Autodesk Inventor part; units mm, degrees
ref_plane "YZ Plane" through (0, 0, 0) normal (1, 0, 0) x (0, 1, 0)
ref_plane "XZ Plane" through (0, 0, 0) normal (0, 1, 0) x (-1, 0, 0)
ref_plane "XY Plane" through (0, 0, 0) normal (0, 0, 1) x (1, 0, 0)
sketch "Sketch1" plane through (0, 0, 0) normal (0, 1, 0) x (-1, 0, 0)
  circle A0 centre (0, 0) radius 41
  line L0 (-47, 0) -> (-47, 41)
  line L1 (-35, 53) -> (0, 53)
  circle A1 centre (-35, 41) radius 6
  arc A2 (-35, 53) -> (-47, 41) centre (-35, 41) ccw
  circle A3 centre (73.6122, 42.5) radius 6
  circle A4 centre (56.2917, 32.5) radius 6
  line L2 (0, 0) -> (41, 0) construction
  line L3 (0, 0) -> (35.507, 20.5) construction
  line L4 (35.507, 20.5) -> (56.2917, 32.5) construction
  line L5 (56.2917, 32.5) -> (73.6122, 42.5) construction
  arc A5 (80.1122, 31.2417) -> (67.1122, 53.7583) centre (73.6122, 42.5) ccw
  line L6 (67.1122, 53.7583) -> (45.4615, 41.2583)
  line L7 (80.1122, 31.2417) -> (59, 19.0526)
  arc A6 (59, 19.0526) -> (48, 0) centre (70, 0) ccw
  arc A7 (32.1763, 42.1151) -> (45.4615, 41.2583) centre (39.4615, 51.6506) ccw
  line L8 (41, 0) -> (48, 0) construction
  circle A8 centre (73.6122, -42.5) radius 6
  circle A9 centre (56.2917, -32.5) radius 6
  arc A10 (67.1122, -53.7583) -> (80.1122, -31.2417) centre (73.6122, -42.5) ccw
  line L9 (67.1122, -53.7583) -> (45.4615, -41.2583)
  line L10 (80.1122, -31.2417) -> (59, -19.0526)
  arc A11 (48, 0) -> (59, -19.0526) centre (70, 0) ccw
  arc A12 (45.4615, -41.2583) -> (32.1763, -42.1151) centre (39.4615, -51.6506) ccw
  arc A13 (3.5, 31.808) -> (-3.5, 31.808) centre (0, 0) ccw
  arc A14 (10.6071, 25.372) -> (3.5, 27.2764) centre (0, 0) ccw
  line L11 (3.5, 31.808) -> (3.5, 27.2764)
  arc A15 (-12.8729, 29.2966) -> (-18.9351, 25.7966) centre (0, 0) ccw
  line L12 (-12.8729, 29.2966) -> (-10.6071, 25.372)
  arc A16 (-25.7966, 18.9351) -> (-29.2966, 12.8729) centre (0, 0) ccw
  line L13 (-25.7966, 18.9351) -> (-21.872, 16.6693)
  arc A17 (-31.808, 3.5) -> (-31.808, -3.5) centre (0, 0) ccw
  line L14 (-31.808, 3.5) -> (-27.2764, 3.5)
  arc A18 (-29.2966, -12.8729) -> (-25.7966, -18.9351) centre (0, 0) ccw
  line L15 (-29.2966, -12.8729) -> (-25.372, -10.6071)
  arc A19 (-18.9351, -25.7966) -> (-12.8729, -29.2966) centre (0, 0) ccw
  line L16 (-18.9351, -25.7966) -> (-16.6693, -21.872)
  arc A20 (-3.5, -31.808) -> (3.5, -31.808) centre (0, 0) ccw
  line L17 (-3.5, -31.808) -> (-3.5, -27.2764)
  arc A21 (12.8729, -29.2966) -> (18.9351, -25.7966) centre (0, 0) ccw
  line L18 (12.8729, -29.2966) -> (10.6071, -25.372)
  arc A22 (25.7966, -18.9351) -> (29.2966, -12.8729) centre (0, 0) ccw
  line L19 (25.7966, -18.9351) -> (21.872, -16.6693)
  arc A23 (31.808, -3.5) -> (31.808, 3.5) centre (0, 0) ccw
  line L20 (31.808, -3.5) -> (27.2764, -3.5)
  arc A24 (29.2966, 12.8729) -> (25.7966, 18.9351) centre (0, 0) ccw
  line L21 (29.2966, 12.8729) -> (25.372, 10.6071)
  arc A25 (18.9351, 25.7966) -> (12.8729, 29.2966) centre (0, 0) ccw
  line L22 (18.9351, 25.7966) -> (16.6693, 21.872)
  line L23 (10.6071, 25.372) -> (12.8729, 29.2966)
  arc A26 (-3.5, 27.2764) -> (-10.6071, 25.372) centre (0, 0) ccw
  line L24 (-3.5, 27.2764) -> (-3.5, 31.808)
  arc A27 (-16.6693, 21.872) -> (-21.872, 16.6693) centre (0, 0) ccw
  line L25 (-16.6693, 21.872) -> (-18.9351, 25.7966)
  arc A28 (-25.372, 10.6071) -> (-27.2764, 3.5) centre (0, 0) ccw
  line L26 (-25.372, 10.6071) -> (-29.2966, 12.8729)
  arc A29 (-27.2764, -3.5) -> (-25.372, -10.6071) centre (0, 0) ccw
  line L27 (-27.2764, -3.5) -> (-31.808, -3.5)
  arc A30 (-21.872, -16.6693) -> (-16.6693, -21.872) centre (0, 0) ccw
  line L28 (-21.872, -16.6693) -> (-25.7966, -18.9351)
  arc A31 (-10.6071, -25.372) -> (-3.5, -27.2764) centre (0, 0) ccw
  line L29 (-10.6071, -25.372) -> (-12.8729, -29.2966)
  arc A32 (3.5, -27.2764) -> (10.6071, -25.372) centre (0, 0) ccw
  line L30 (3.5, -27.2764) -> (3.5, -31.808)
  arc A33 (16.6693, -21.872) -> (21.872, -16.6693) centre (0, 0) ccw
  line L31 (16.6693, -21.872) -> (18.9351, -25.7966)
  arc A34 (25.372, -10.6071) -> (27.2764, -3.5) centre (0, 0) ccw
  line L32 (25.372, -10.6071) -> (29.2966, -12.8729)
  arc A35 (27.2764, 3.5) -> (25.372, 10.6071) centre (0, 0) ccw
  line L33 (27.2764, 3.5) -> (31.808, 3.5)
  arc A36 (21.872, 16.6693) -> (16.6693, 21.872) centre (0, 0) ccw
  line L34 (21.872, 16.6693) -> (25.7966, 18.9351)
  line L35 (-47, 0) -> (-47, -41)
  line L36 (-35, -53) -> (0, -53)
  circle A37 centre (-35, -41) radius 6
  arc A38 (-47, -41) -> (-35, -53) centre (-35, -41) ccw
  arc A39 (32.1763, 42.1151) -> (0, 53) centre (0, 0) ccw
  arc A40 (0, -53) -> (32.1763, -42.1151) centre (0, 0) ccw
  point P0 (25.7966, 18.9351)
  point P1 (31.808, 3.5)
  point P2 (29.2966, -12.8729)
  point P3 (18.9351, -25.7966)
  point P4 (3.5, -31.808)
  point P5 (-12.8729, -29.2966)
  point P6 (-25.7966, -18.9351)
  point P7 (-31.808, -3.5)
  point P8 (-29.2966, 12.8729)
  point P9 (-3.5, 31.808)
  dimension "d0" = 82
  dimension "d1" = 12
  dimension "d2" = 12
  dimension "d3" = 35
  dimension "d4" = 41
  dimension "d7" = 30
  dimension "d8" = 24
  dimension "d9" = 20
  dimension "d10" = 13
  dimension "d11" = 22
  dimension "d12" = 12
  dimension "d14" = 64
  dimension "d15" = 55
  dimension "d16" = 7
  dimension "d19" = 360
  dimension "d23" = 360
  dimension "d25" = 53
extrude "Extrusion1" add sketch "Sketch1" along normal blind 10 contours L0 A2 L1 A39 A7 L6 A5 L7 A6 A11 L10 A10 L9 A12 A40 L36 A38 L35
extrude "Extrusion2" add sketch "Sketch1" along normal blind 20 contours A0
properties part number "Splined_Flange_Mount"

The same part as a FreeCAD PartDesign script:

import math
import FreeCAD as App
import Part
import Sketcher

V = App.Vector
Q = App.Units.Quantity

doc = App.newDocument("Part")
body = doc.addObject("PartDesign::Body", "Body")

# Sketch on XZ plane
sketch1 = doc.addObject("Sketcher::SketchObject", "Sketch")
body.addObject(sketch1)
sketch1.AttachmentSupport = (doc.XZ_Plane, [""])
sketch1.MapMode = "FlatFace"
sketch1.addGeometry([
    Part.LineSegment(V(47, 41, 0), V(47, -41, 0)),  # 0
    Part.ArcOfCircle(Part.Circle(V(35, -41, 0), V(0, 0, 1), 12), math.radians(-90), math.radians(0)),  # 1
    Part.LineSegment(V(35, -53, 0), V(0, -53, 0)),  # 2
    Part.ArcOfCircle(Part.Circle(V(0, 0, 0), V(0, 0, 1), 53), math.radians(-127), math.radians(-90)),  # 3
    Part.ArcOfCircle(Part.Circle(V(-39, -52, 0), V(0, 0, 1), 12), math.radians(53), math.radians(120)),  # 4
    Part.LineSegment(V(-45, -41, 0), V(-67, -54, 0)),  # 5
    Part.ArcOfCircle(Part.Circle(V(-74, -42, 0), V(0, 0, 1), 13), math.radians(120), math.radians(300)),  # 6
    Part.LineSegment(V(-80, -31, 0), V(-59, -19, 0)),  # 7
    Part.ArcOfCircle(Part.Circle(V(-70, 0, 0), V(0, 0, 1), 22), math.radians(-60), math.radians(0)),  # 8
    Part.ArcOfCircle(Part.Circle(V(-70, 0, 0), V(0, 0, 1), 22), math.radians(0), math.radians(60)),  # 9
    Part.LineSegment(V(-59, 19, 0), V(-80, 31, 0)),  # 10
    Part.ArcOfCircle(Part.Circle(V(-74, 42, 0), V(0, 0, 1), 13), math.radians(60), math.radians(240)),  # 11
    Part.LineSegment(V(-67, 54, 0), V(-45, 41, 0)),  # 12
    Part.ArcOfCircle(Part.Circle(V(-39, 52, 0), V(0, 0, 1), 12), math.radians(-120), math.radians(-53)),  # 13
    Part.ArcOfCircle(Part.Circle(V(0, 0, 0), V(0, 0, 1), 53), math.radians(90), math.radians(127)),  # 14
    Part.LineSegment(V(0, 53, 0), V(35, 53, 0)),  # 15
    Part.ArcOfCircle(Part.Circle(V(35, 41, 0), V(0, 0, 1), 12), math.radians(0), math.radians(90)),  # 16
    Part.Circle(V(35, -41, 0), V(0, 0, 1), 6),  # 17
    Part.Circle(V(-74, -42, 0), V(0, 0, 1), 6),  # 18
    Part.Circle(V(-56, -32, 0), V(0, 0, 1), 6),  # 19
    Part.Circle(V(0, 0, 0), V(0, 0, 1), 41),  # 20
    Part.Circle(V(35, 41, 0), V(0, 0, 1), 6),  # 21
    Part.Circle(V(-56, 32, 0), V(0, 0, 1), 6),  # 22
    Part.Circle(V(-74, 42, 0), V(0, 0, 1), 6),  # 23
], False)
sketch1.addConstraint([
    Sketcher.Constraint("Tangent", 0, 2, 1, 2),
    Sketcher.Constraint("Tangent", 1, 1, 2, 1),
    Sketcher.Constraint("Tangent", 2, 2, 3, 2),
    Sketcher.Constraint("Tangent", 3, 1, 4, 1),
    Sketcher.Constraint("Tangent", 4, 2, 5, 1),
    Sketcher.Constraint("Tangent", 5, 2, 6, 2),
    Sketcher.Constraint("Tangent", 6, 1, 7, 1),
    Sketcher.Constraint("Tangent", 7, 2, 8, 1),
    Sketcher.Constraint("Tangent", 8, 2, 9, 1),
    Sketcher.Constraint("Tangent", 9, 2, 10, 1),
    Sketcher.Constraint("Tangent", 10, 2, 11, 2),
    Sketcher.Constraint("Tangent", 11, 1, 12, 1),
    Sketcher.Constraint("Tangent", 12, 2, 13, 1),
    Sketcher.Constraint("Tangent", 13, 2, 14, 2),
    Sketcher.Constraint("Tangent", 14, 1, 15, 1),
    Sketcher.Constraint("Tangent", 15, 2, 16, 2),
    Sketcher.Constraint("Tangent", 16, 1, 0, 1),
    Sketcher.Constraint("Vertical", 0),
    Sketcher.Constraint("Horizontal", 2),
    Sketcher.Constraint("Horizontal", 15),
    Sketcher.Constraint("Coincident", 3, 3, -1, 1),
    Sketcher.Constraint("Coincident", 14, 3, -1, 1),
    Sketcher.Constraint("Coincident", 20, 3, -1, 1),
    Sketcher.Constraint("Coincident", 17, 3, 1, 3),
    Sketcher.Constraint("Coincident", 18, 3, 6, 3),
    Sketcher.Constraint("Coincident", 21, 3, 16, 3),
    Sketcher.Constraint("Coincident", 23, 3, 11, 3),
    Sketcher.Constraint("Equal", 1, 4),
    Sketcher.Constraint("Equal", 8, 9),
    Sketcher.Constraint("Equal", 6, 11),
    Sketcher.Constraint("Equal", 4, 13),
    Sketcher.Constraint("Equal", 3, 14),
    Sketcher.Constraint("Equal", 13, 16),
    Sketcher.Constraint("Equal", 17, 18),
    Sketcher.Constraint("Equal", 18, 19),
    Sketcher.Constraint("Equal", 19, 21),
    Sketcher.Constraint("Equal", 21, 22),
    Sketcher.Constraint("Equal", 22, 23),
    Sketcher.Constraint("Symmetric", 6, 3, 11, 3, -1),
    Sketcher.Constraint("Symmetric", 19, 3, 22, 3, -1),
    Sketcher.Constraint("PointOnObject", 8, 3, -1),
    Sketcher.Constraint("PointOnObject", 8, 2, -1),
    Sketcher.Constraint("Parallel", 5, 7),
    Sketcher.Constraint("Parallel", 10, 12),
    Sketcher.Constraint("Diameter", 17, Q("12 mm")),
    Sketcher.Constraint("Diameter", 20, Q("82 mm")),
    Sketcher.Constraint("Radius", 1, Q("12 mm")),
    Sketcher.Constraint("Radius", 3, Q("53 mm")),
    Sketcher.Constraint("Radius", 6, Q("13 mm")),
    Sketcher.Constraint("Radius", 8, Q("22 mm")),
    Sketcher.Constraint("DistanceX", 2, 2, 2, 1, Q("35 mm")),
    Sketcher.Constraint("Angle", 7, Q("30 deg")),
    Sketcher.Constraint("Distance", 5, Q("25 mm")),
    Sketcher.Constraint("DistanceX", 8, 3, -1, 1, Q("70 mm")),
    Sketcher.Constraint("DistanceY", 6, 3, 19, 3, Q("10 mm")),
    Sketcher.Constraint("DistanceX", 19, 3, -1, 1, Q("56.2917 mm")),
])
pad1 = doc.addObject("PartDesign::Pad", "Pad")
body.addObject(pad1)
pad1.Profile = sketch1
pad1.Length = 10
pad1.Reversed = True

# Sketch on XZ plane
sketch2 = doc.addObject("Sketcher::SketchObject", "Sketch001")
body.addObject(sketch2)
sketch2.AttachmentSupport = (doc.XZ_Plane, [""])
sketch2.MapMode = "FlatFace"
sketch2.addGeometry([
    Part.Circle(V(0, 0, 0), V(0, 0, 1), 41),  # 0
    Part.ArcOfCircle(Part.Circle(V(0, 0, 0), V(0, 0, 1), 31.999982), math.radians(83.720708), math.radians(96.279292)),  # 1
    Part.LineSegment(V(-3.5, 31.808, 0), V(-3.5, 27.2764, 0)),  # 2
    Part.ArcOfCircle(Part.Circle(V(0.000996, -0.002919, 0), V(0, 0, 1), 27.503058), math.radians(97.313297), math.radians(112.68758)),  # 3
    Part.LineSegment(V(-10.6071, 25.372, 0), V(-12.8729, 29.2966, 0)),  # 4
    Part.ArcOfCircle(Part.Circle(V(0, 0, 0), V(0, 0, 1), 31.999982), math.radians(113.720644), math.radians(126.27924)),  # 5
    Part.LineSegment(V(-18.9351, 25.7966, 0), V(-16.6693, 21.872, 0)),  # 6
    Part.ArcOfCircle(Part.Circle(V(0, 0, 0), V(0, 0, 1), 27.499999), math.radians(127.3121), math.radians(142.6879)),  # 7
    Part.LineSegment(V(-21.872, 16.6693, 0), V(-25.7966, 18.9351, 0)),  # 8
    Part.ArcOfCircle(Part.Circle(V(0, 0, 0), V(0, 0, 1), 32.00004), math.radians(143.72076), math.radians(156.279356)),  # 9
    Part.LineSegment(V(-29.2966, 12.8729, 0), V(-25.372, 10.6071, 0)),  # 10
    Part.ArcOfCircle(Part.Circle(V(-0.003025, 0.000597, 0), V(0, 0, 1), 27.49696), math.radians(157.310704), math.radians(172.688419)),  # 11
    Part.LineSegment(V(-27.2764, 3.5, 0), V(-31.808, 3.5, 0)),  # 12
    Part.ArcOfCircle(Part.Circle(V(0, 0, 0), V(0, 0, 1), 31.999982), math.radians(173.720708), math.radians(186.279292)),  # 13
    Part.LineSegment(V(-31.808, -3.5, 0), V(-27.2764, -3.5, 0)),  # 14
    Part.ArcOfCircle(Part.Circle(V(0.002919, 0.000996, 0), V(0, 0, 1), 27.503058), math.radians(-172.686703), math.radians(-157.31242)),  # 15
    Part.LineSegment(V(-25.372, -10.6071, 0), V(-29.2966, -12.8729, 0)),  # 16
    Part.ArcOfCircle(Part.Circle(V(0, 0, 0), V(0, 0, 1), 31.999982), math.radians(-156.279356), math.radians(-143.72076)),  # 17
    Part.LineSegment(V(-25.7966, -18.9351, 0), V(-21.872, -16.6693, 0)),  # 18
    Part.ArcOfCircle(Part.Circle(V(0, 0, 0), V(0, 0, 1), 27.499999), math.radians(-142.6879), math.radians(-127.3121)),  # 19
    Part.LineSegment(V(-16.6693, -21.872, 0), V(-18.9351, -25.7966, 0)),  # 20
    Part.ArcOfCircle(Part.Circle(V(0, 0, 0), V(0, 0, 1), 32.00004), math.radians(-126.27924), math.radians(-113.720644)),  # 21
    Part.LineSegment(V(-12.8729, -29.2966, 0), V(-10.6071, -25.372, 0)),  # 22
    Part.ArcOfCircle(Part.Circle(V(-0.000597, -0.003025, 0), V(0, 0, 1), 27.49696), math.radians(-112.689296), math.radians(-97.311581)),  # 23
    Part.LineSegment(V(-3.5, -27.2764, 0), V(-3.5, -31.808, 0)),  # 24
    Part.ArcOfCircle(Part.Circle(V(0, 0, 0), V(0, 0, 1), 31.999982), math.radians(-96.279292), math.radians(-83.720708)),  # 25
    Part.LineSegment(V(3.5, -31.808, 0), V(3.5, -27.2764, 0)),  # 26
    Part.ArcOfCircle(Part.Circle(V(-0.000996, 0.002919, 0), V(0, 0, 1), 27.503058), math.radians(-82.686703), math.radians(-67.31242)),  # 27
    Part.LineSegment(V(10.6071, -25.372, 0), V(12.8729, -29.2966, 0)),  # 28
    Part.ArcOfCircle(Part.Circle(V(0, 0, 0), V(0, 0, 1), 31.999982), math.radians(-66.279356), math.radians(-53.72076)),  # 29
    Part.LineSegment(V(18.9351, -25.7966, 0), V(16.6693, -21.872, 0)),  # 30
    Part.ArcOfCircle(Part.Circle(V(0, 0, 0), V(0, 0, 1), 27.499999), math.radians(-52.6879), math.radians(-37.3121)),  # 31
    Part.LineSegment(V(21.872, -16.6693, 0), V(25.7966, -18.9351, 0)),  # 32
    Part.ArcOfCircle(Part.Circle(V(0, 0, 0), V(0, 0, 1), 32.00004), math.radians(-36.27924), math.radians(-23.720644)),  # 33
    Part.LineSegment(V(29.2966, -12.8729, 0), V(25.372, -10.6071, 0)),  # 34
    Part.ArcOfCircle(Part.Circle(V(0.003025, -0.000597, 0), V(0, 0, 1), 27.49696), math.radians(-22.689296), math.radians(-7.311581)),  # 35
    Part.LineSegment(V(27.2764, -3.5, 0), V(31.808, -3.5, 0)),  # 36
    Part.ArcOfCircle(Part.Circle(V(0, 0, 0), V(0, 0, 1), 31.999982), math.radians(-6.279292), math.radians(6.279292)),  # 37
    Part.LineSegment(V(31.808, 3.5, 0), V(27.2764, 3.5, 0)),  # 38
    Part.ArcOfCircle(Part.Circle(V(-0.002919, -0.000996, 0), V(0, 0, 1), 27.503058), math.radians(7.313297), math.radians(22.68758)),  # 39
    Part.LineSegment(V(25.372, 10.6071, 0), V(29.2966, 12.8729, 0)),  # 40
    Part.ArcOfCircle(Part.Circle(V(0, 0, 0), V(0, 0, 1), 31.999982), math.radians(23.720644), math.radians(36.27924)),  # 41
    Part.LineSegment(V(25.7966, 18.9351, 0), V(21.872, 16.6693, 0)),  # 42
    Part.ArcOfCircle(Part.Circle(V(0, 0, 0), V(0, 0, 1), 27.499999), math.radians(37.3121), math.radians(52.6879)),  # 43
    Part.LineSegment(V(16.6693, 21.872, 0), V(18.9351, 25.7966, 0)),  # 44
    Part.ArcOfCircle(Part.Circle(V(0, 0, 0), V(0, 0, 1), 32.00004), math.radians(53.72076), math.radians(66.279356)),  # 45
    Part.LineSegment(V(12.8729, 29.2966, 0), V(10.6071, 25.372, 0)),  # 46
    Part.ArcOfCircle(Part.Circle(V(0.000597, 0.003025, 0), V(0, 0, 1), 27.49696), math.radians(67.310704), math.radians(82.688419)),  # 47
    Part.LineSegment(V(3.5, 27.2764, 0), V(3.5, 31.808, 0)),  # 48
], False)
sketch2.addConstraint([
    Sketcher.Constraint("Coincident", 1, 2, 2, 1),
    Sketcher.Constraint("Coincident", 2, 2, 3, 1),
    Sketcher.Constraint("Coincident", 3, 2, 4, 1),
    Sketcher.Constraint("Coincident", 4, 2, 5, 1),
    Sketcher.Constraint("Coincident", 5, 2, 6, 1),
    Sketcher.Constraint("Coincident", 6, 2, 7, 1),
    Sketcher.Constraint("Coincident", 7, 2, 8, 1),
    Sketcher.Constraint("Coincident", 8, 2, 9, 1),
    Sketcher.Constraint("Coincident", 9, 2, 10, 1),
    Sketcher.Constraint("Coincident", 10, 2, 11, 1),
    Sketcher.Constraint("Coincident", 11, 2, 12, 1),
    Sketcher.Constraint("Coincident", 12, 2, 13, 1),
    Sketcher.Constraint("Coincident", 13, 2, 14, 1),
    Sketcher.Constraint("Coincident", 14, 2, 15, 1),
    Sketcher.Constraint("Coincident", 15, 2, 16, 1),
    Sketcher.Constraint("Coincident", 16, 2, 17, 1),
    Sketcher.Constraint("Coincident", 17, 2, 18, 1),
    Sketcher.Constraint("Coincident", 18, 2, 19, 1),
    Sketcher.Constraint("Coincident", 19, 2, 20, 1),
    Sketcher.Constraint("Coincident", 20, 2, 21, 1),
    Sketcher.Constraint("Coincident", 21, 2, 22, 1),
    Sketcher.Constraint("Coincident", 22, 2, 23, 1),
    Sketcher.Constraint("Coincident", 23, 2, 24, 1),
    Sketcher.Constraint("Coincident", 24, 2, 25, 1),
    Sketcher.Constraint("Coincident", 25, 2, 26, 1),
    Sketcher.Constraint("Coincident", 26, 2, 27, 1),
    Sketcher.Constraint("Coincident", 27, 2, 28, 1),
    Sketcher.Constraint("Coincident", 28, 2, 29, 1),
    Sketcher.Constraint("Coincident", 29, 2, 30, 1),
    Sketcher.Constraint("Coincident", 30, 2, 31, 1),
    Sketcher.Constraint("Coincident", 31, 2, 32, 1),
    Sketcher.Constraint("Coincident", 32, 2, 33, 1),
    Sketcher.Constraint("Coincident", 33, 2, 34, 1),
    Sketcher.Constraint("Coincident", 34, 2, 35, 1),
    Sketcher.Constraint("Coincident", 35, 2, 36, 1),
    Sketcher.Constraint("Coincident", 36, 2, 37, 1),
    Sketcher.Constraint("Coincident", 37, 2, 38, 1),
    Sketcher.Constraint("Coincident", 38, 2, 39, 1),
    Sketcher.Constraint("Coincident", 39, 2, 40, 1),
    Sketcher.Constraint("Coincident", 40, 2, 41, 1),
    Sketcher.Constraint("Coincident", 41, 2, 42, 1),
    Sketcher.Constraint("Coincident", 42, 2, 43, 1),
    Sketcher.Constraint("Coincident", 43, 2, 44, 1),
    Sketcher.Constraint("Coincident", 44, 2, 45, 1),
    Sketcher.Constraint("Coincident", 45, 2, 46, 1),
    Sketcher.Constraint("Coincident", 46, 2, 47, 1),
    Sketcher.Constraint("Coincident", 47, 2, 48, 1),
    Sketcher.Constraint("Coincident", 48, 2, 1, 1),
    Sketcher.Constraint("Vertical", 2),
    Sketcher.Constraint("Horizontal", 12),
    Sketcher.Constraint("Horizontal", 14),
    Sketcher.Constraint("Vertical", 24),
    Sketcher.Constraint("Vertical", 26),
    Sketcher.Constraint("Horizontal", 36),
    Sketcher.Constraint("Horizontal", 38),
    Sketcher.Constraint("Vertical", 48),
    Sketcher.Constraint("Coincident", 0, 3, -1, 1),
    Sketcher.Constraint("Coincident", 1, 3, -1, 1),
    Sketcher.Constraint("Coincident", 5, 3, -1, 1),
    Sketcher.Constraint("Coincident", 7, 3, -1, 1),
    Sketcher.Constraint("Coincident", 9, 3, -1, 1),
    Sketcher.Constraint("Coincident", 13, 3, -1, 1),
    Sketcher.Constraint("Coincident", 17, 3, -1, 1),
    Sketcher.Constraint("Coincident", 19, 3, -1, 1),
    Sketcher.Constraint("Coincident", 21, 3, -1, 1),
    Sketcher.Constraint("Coincident", 25, 3, -1, 1),
    Sketcher.Constraint("Coincident", 29, 3, -1, 1),
    Sketcher.Constraint("Coincident", 31, 3, -1, 1),
    Sketcher.Constraint("Coincident", 33, 3, -1, 1),
    Sketcher.Constraint("Coincident", 37, 3, -1, 1),
    Sketcher.Constraint("Coincident", 41, 3, -1, 1),
    Sketcher.Constraint("Coincident", 43, 3, -1, 1),
    Sketcher.Constraint("Coincident", 45, 3, -1, 1),
    Sketcher.Constraint("Diameter", 0, Q("82 mm")),
    Sketcher.Constraint("Radius", 1, Q("32 mm")),
    Sketcher.Constraint("Radius", 5, Q("32 mm")),
    Sketcher.Constraint("Radius", 9, Q("32 mm")),
    Sketcher.Constraint("Radius", 13, Q("32 mm")),
    Sketcher.Constraint("Radius", 17, Q("32 mm")),
    Sketcher.Constraint("Radius", 21, Q("32 mm")),
    Sketcher.Constraint("Radius", 25, Q("32 mm")),
    Sketcher.Constraint("Radius", 29, Q("32 mm")),
    Sketcher.Constraint("Radius", 33, Q("32 mm")),
    Sketcher.Constraint("Radius", 37, Q("32 mm")),
    Sketcher.Constraint("Radius", 41, Q("32 mm")),
    Sketcher.Constraint("Radius", 45, Q("32 mm")),
    Sketcher.Constraint("Radius", 7, Q("27.5 mm")),
    Sketcher.Constraint("Radius", 19, Q("27.5 mm")),
    Sketcher.Constraint("Radius", 31, Q("27.5 mm")),
    Sketcher.Constraint("Radius", 43, Q("27.5 mm")),
    Sketcher.Constraint("Radius", 3, Q("27.503 mm")),
    Sketcher.Constraint("Radius", 11, Q("27.497 mm")),
    Sketcher.Constraint("Radius", 15, Q("27.503 mm")),
    Sketcher.Constraint("Radius", 23, Q("27.497 mm")),
    Sketcher.Constraint("Radius", 27, Q("27.503 mm")),
    Sketcher.Constraint("Radius", 35, Q("27.497 mm")),
    Sketcher.Constraint("Radius", 39, Q("27.503 mm")),
    Sketcher.Constraint("Radius", 47, Q("27.497 mm")),
    Sketcher.Constraint("DistanceX", 1, 2, -1, 1, Q("3.5 mm")),
    Sketcher.Constraint("DistanceY", -1, 1, 11, 2, Q("3.5 mm")),
    Sketcher.Constraint("DistanceY", 13, 2, -1, 1, Q("3.5 mm")),
    Sketcher.Constraint("DistanceX", 23, 2, -1, 1, Q("3.5 mm")),
    Sketcher.Constraint("DistanceX", -1, 1, 25, 2, Q("3.5 mm")),
    Sketcher.Constraint("DistanceY", 35, 2, -1, 1, Q("3.5 mm")),
    Sketcher.Constraint("DistanceY", -1, 1, 37, 2, Q("3.5 mm")),
    Sketcher.Constraint("DistanceX", -1, 1, 47, 2, Q("3.5 mm")),
    Sketcher.Constraint("DistanceX", 12, 2, 12, 1, Q("4.5316 mm")),
    Sketcher.Constraint("DistanceX", 14, 1, 14, 2, Q("4.5316 mm")),
    Sketcher.Constraint("DistanceX", 36, 1, 36, 2, Q("4.5316 mm")),
    Sketcher.Constraint("DistanceX", 38, 2, 38, 1, Q("4.5316 mm")),
    Sketcher.Constraint("DistanceY", 2, 2, 2, 1, Q("4.5316 mm")),
    Sketcher.Constraint("DistanceY", 24, 2, 24, 1, Q("4.5316 mm")),
    Sketcher.Constraint("DistanceY", 26, 1, 26, 2, Q("4.5316 mm")),
    Sketcher.Constraint("DistanceY", 48, 1, 48, 2, Q("4.5316 mm")),
    Sketcher.Constraint("DistanceX", -1, 1, 3, 3, Q("0.001 mm")),
    Sketcher.Constraint("DistanceX", 11, 3, -1, 1, Q("0.003 mm")),
    Sketcher.Constraint("DistanceX", -1, 1, 15, 3, Q("0.003 mm")),
    Sketcher.Constraint("DistanceY", 23, 3, -1, 1, Q("0.003 mm")),
    Sketcher.Constraint("DistanceX", 27, 3, -1, 1, Q("0.001 mm")),
    Sketcher.Constraint("DistanceX", -1, 1, 35, 3, Q("0.003 mm")),
    Sketcher.Constraint("DistanceX", 39, 3, -1, 1, Q("0.003 mm")),
    Sketcher.Constraint("DistanceY", -1, 1, 47, 3, Q("0.003 mm")),
    Sketcher.Constraint("DistanceX", 3, 2, -1, 1, Q("10.607 mm")),
    Sketcher.Constraint("DistanceX", 4, 2, -1, 1, Q("12.873 mm")),
    Sketcher.Constraint("DistanceX", 5, 2, -1, 1, Q("18.935 mm")),
    Sketcher.Constraint("DistanceY", -1, 1, 6, 2, Q("21.872 mm")),
    Sketcher.Constraint("DistanceX", 7, 2, -1, 1, Q("21.872 mm")),
    Sketcher.Constraint("DistanceY", -1, 1, 8, 2, Q("18.935 mm")),
    Sketcher.Constraint("DistanceY", -1, 1, 9, 2, Q("12.873 mm")),
    Sketcher.Constraint("DistanceX", 10, 2, -1, 1, Q("25.372 mm")),
    Sketcher.Constraint("DistanceX", 15, 2, -1, 1, Q("25.372 mm")),
    Sketcher.Constraint("DistanceY", 16, 2, -1, 1, Q("12.873 mm")),
    Sketcher.Constraint("DistanceY", 17, 2, -1, 1, Q("18.935 mm")),
    Sketcher.Constraint("DistanceX", 18, 2, -1, 1, Q("21.872 mm")),
    Sketcher.Constraint("DistanceY", 19, 2, -1, 1, Q("21.872 mm")),
    Sketcher.Constraint("DistanceX", 20, 2, -1, 1, Q("18.935 mm")),
    Sketcher.Constraint("DistanceX", 21, 2, -1, 1, Q("12.873 mm")),
    Sketcher.Constraint("DistanceX", 22, 2, -1, 1, Q("10.607 mm")),
    Sketcher.Constraint("DistanceX", -1, 1, 27, 2, Q("10.607 mm")),
    Sketcher.Constraint("DistanceX", -1, 1, 28, 2, Q("12.873 mm")),
    Sketcher.Constraint("DistanceX", -1, 1, 29, 2, Q("18.935 mm")),
    Sketcher.Constraint("DistanceY", 30, 2, -1, 1, Q("21.872 mm")),
    Sketcher.Constraint("DistanceX", -1, 1, 31, 2, Q("21.872 mm")),
    Sketcher.Constraint("DistanceY", 32, 2, -1, 1, Q("18.935 mm")),
    Sketcher.Constraint("DistanceY", 33, 2, -1, 1, Q("12.873 mm")),
    Sketcher.Constraint("DistanceX", -1, 1, 34, 2, Q("25.372 mm")),
    Sketcher.Constraint("DistanceX", -1, 1, 39, 2, Q("25.372 mm")),
    Sketcher.Constraint("DistanceY", -1, 1, 40, 2, Q("12.873 mm")),
    Sketcher.Constraint("DistanceY", -1, 1, 41, 2, Q("18.935 mm")),
    Sketcher.Constraint("DistanceX", -1, 1, 42, 2, Q("21.872 mm")),
    Sketcher.Constraint("DistanceY", -1, 1, 43, 2, Q("21.872 mm")),
    Sketcher.Constraint("DistanceX", -1, 1, 44, 2, Q("18.935 mm")),
    Sketcher.Constraint("DistanceX", -1, 1, 45, 2, Q("12.873 mm")),
    Sketcher.Constraint("DistanceX", -1, 1, 46, 2, Q("10.607 mm")),
])
pad2 = doc.addObject("PartDesign::Pad", "Pad001")
body.addObject(pad2)
pad2.Profile = sketch2
pad2.Length = 20
pad2.Reversed = True

doc.recompute()
